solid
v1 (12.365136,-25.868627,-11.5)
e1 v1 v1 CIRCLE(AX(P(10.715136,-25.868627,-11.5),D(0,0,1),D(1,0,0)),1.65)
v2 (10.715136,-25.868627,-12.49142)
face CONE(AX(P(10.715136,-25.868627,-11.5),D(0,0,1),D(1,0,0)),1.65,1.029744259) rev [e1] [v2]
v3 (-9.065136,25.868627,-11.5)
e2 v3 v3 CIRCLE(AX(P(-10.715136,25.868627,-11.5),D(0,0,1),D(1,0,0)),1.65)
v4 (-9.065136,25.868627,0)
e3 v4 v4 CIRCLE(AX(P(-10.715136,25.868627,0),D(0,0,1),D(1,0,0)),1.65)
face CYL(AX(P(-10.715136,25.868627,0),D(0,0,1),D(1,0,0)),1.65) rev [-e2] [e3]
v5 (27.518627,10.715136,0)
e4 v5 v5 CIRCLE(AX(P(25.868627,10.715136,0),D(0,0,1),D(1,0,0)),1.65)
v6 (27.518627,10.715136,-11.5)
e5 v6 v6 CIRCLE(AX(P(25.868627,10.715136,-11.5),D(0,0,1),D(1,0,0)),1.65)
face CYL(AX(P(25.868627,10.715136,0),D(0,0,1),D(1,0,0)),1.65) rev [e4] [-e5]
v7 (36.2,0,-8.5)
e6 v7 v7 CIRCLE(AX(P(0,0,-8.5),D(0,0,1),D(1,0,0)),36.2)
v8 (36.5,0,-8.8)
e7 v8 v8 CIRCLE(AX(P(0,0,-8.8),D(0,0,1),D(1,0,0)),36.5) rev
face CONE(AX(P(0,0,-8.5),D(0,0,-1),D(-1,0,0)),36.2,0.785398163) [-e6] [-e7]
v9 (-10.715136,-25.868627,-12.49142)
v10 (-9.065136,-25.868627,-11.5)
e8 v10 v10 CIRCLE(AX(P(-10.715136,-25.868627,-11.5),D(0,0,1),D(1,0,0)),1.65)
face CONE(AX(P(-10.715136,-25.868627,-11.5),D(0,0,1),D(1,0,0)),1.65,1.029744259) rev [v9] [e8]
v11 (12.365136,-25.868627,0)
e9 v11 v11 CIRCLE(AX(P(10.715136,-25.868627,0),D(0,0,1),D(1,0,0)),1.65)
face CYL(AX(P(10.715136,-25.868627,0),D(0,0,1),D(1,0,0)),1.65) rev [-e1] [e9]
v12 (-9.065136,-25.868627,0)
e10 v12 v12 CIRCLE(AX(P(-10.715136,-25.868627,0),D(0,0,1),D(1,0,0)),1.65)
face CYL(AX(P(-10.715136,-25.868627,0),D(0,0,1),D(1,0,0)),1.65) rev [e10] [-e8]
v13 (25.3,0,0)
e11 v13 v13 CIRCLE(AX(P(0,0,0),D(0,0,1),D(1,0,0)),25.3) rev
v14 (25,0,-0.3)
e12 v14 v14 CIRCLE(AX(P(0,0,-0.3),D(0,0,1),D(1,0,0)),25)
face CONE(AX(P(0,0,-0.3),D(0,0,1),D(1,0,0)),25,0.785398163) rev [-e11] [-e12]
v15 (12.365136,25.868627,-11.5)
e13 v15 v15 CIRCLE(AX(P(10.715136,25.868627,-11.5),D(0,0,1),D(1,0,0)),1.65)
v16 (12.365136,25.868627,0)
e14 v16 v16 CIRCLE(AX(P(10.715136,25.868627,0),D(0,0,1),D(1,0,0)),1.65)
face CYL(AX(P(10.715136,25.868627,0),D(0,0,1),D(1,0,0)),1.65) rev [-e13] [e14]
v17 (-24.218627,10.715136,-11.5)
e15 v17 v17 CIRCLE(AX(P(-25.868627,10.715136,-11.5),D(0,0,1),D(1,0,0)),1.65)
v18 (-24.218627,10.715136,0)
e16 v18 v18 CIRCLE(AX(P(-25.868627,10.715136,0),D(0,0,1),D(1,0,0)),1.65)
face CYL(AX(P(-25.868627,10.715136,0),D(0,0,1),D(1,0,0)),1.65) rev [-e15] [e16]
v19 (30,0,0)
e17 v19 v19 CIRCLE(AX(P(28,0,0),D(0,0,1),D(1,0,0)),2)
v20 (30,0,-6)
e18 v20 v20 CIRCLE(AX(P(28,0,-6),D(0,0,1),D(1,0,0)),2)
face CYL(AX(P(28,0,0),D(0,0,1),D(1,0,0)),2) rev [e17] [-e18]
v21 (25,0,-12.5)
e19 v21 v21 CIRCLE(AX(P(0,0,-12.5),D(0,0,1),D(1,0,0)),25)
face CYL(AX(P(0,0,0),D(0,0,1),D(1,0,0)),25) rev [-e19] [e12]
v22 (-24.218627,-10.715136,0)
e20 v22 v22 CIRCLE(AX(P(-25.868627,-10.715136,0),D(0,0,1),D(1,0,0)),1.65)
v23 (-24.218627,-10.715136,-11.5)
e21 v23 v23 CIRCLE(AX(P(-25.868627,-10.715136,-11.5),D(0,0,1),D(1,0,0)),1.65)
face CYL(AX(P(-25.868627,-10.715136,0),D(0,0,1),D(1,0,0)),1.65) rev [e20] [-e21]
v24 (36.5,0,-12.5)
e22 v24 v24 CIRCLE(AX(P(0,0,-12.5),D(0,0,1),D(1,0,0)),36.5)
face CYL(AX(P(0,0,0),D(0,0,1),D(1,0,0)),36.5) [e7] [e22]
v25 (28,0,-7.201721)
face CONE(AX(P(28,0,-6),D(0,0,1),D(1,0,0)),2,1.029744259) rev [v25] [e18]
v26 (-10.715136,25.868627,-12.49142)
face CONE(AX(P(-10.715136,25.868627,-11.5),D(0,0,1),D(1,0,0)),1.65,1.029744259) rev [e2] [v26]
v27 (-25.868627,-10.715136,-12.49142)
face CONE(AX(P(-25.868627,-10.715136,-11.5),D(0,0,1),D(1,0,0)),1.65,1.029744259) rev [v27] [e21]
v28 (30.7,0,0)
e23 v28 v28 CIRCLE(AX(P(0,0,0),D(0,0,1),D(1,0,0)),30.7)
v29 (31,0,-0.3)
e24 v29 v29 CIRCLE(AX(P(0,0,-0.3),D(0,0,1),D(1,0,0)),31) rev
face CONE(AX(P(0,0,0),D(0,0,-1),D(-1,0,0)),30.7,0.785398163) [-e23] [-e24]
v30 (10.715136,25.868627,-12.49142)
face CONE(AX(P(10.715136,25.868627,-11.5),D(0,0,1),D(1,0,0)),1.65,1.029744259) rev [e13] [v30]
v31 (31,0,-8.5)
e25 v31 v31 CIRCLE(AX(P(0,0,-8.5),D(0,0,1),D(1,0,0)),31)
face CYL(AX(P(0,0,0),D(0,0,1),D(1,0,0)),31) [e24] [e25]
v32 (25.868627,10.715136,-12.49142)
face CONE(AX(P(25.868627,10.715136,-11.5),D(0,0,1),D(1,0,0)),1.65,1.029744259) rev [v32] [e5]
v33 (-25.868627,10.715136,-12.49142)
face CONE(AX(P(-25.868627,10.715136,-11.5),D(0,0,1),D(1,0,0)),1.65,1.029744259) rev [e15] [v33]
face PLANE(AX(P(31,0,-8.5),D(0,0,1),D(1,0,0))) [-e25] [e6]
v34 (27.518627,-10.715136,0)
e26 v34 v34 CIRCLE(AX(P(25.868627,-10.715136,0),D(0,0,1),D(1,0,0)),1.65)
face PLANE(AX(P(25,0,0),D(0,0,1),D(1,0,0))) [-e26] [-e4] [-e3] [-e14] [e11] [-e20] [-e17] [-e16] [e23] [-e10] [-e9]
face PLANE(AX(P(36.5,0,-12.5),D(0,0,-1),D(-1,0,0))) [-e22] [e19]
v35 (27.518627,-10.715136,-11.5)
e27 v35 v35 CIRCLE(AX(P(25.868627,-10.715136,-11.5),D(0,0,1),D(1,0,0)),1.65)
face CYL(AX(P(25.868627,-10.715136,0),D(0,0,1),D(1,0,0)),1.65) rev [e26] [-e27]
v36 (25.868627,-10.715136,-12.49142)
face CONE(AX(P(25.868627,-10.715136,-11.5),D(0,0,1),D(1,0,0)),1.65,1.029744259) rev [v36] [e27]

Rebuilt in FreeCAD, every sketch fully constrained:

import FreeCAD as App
import Part
import Sketcher

V = App.Vector
Q = App.Units.Quantity


def edges_at(feature, points):
    """Names of the edges that pass closest to the given points."""
    edges = feature.Shape.Edges
    near = lambda p: min(range(len(edges)), key=lambda i: edges[i].distToShape(Part.Vertex(*p))[0])
    return sorted({f"Edge{near(p) + 1}" for p in points})


def add_polygon(sketch, points):
    """Adds a closed chain of lines whose ends are joined by coincident constraints."""
    first, n = sketch.GeometryCount, len(points)
    for a, b in zip(points, points[1:] + points[:1]):
        sketch.addGeometry(Part.LineSegment(App.Vector(*a, 0), App.Vector(*b, 0)), False)
    for i in range(n):
        sketch.addConstraint(Sketcher.Constraint("Coincident", first + i, 2, first + (i + 1) % n, 1))

doc = App.newDocument("Part")
body = doc.addObject("PartDesign::Body", "Body")

sketch1 = body.newObject("Sketcher::SketchObject", "Sketch")
sketch1.AttachmentSupport = (doc.getObject("XZ_Plane"), [""])
sketch1.MapMode = "FlatFace"
add_polygon(sketch1, [(25, 0), (31, 0), (31, -8.5), (36.5, -8.5), (36.5, -12.5), (25, -12.5)])
sketch1.addConstraint([
    Sketcher.Constraint("Horizontal", 0),
    Sketcher.Constraint("Vertical", 1),
    Sketcher.Constraint("Horizontal", 2),
    Sketcher.Constraint("Vertical", 3),
    Sketcher.Constraint("Horizontal", 4),
    Sketcher.Constraint("Vertical", 5),
    Sketcher.Constraint("PointOnObject", 0, 2, -1),
    Sketcher.Constraint("DistanceX", 0, 1, 0, 2, 6.0),
    Sketcher.Constraint("DistanceY", 3, 2, 3, 1, 4.0),
    Sketcher.Constraint("DistanceX", 2, 1, 2, 2, 5.5),
    Sketcher.Constraint("DistanceY", 1, 2, 1, 1, 8.5),
    Sketcher.Constraint("DistanceX", -1, 1, 0, 2, 31.0),
])
revolution = body.newObject("PartDesign::Revolution", "Revolution")
revolution.Profile = sketch1
revolution.ReferenceAxis = (sketch1, ["V_Axis"])
revolution.Angle = 360
doc.recompute()

chamfer = body.newObject("PartDesign::Chamfer", "Chamfer")
chamfer.Base = (revolution, edges_at(revolution, [(-36.5, 0, -8.5), (-25, 0, 0), (-31, 0, 0)]))
chamfer.Size = 0.3

sketch2 = body.newObject("Sketcher::SketchObject", "Sketch001")
sketch2.AttachmentSupport = (doc.getObject("XY_Plane"), [""])
sketch2.MapMode = "FlatFace"
sketch2.addGeometry(Part.Circle(V(28, 0, 0), V(0, 0, 1), 2), False)
sketch2.addConstraint([
    Sketcher.Constraint("PointOnObject", 0, 3, -1),
    Sketcher.Constraint("Diameter", 0, 4.0),
    Sketcher.Constraint("DistanceX", -1, 1, 0, 3, 28.0),
])
doc.recompute()
hole = body.newObject("PartDesign::Hole", "Hole")
hole.Profile = sketch2
hole.ThreadType = "None"
hole.Diameter = 4
hole.DepthType = "Dimension"
hole.Depth = 6
hole.DrillPoint = "Angled"
hole.DrillPointAngle = 118

sketch3 = body.newObject("Sketcher::SketchObject", "Sketch002")
sketch3.AttachmentSupport = (doc.getObject("YZ_Plane"), [""])
sketch3.MapMode = "FlatFace"
sketch3.AttachmentOffset = App.Placement(V(0, 0, 25.868627), App.Rotation())
add_polygon(sketch3, [(-10.7, -12.5), (-10.7, 0), (-12.4, 0), (-12.4, -11.5)])
sketch3.addGeometry(Part.LineSegment(V(-10.7, 0, 0), V(-10.7, -12.5, 0)), True)
sketch3.addConstraint([
    Sketcher.Constraint("Vertical", 0),
    Sketcher.Constraint("Horizontal", 1),
    Sketcher.Constraint("Vertical", 2),
    Sketcher.Constraint("Vertical", 4),
    Sketcher.Constraint("Coincident", 4, 1, 0, 2),
    Sketcher.Constraint("PointOnObject", 0, 2, -1),
    Sketcher.Constraint("Equal", 0, 4),
    Sketcher.Constraint("Angle", 3, Q("-31 deg")),
    Sketcher.Constraint("DistanceY", 2, 2, 2, 1, 11.5),
    Sketcher.Constraint("DistanceX", 1, 2, 1, 1, 1.65),
    Sketcher.Constraint("DistanceX", 0, 2, -1, 1, 10.715136),
])
groove = body.newObject("PartDesign::Groove", "Groove")
groove.Profile = sketch3
groove.ReferenceAxis = (sketch3, ["Axis0"])
groove.Angle = 360
doc.recompute()

polarpattern = body.newObject("PartDesign::PolarPattern", "PolarPattern")
polarpattern.Originals = [groove]
polarpattern.Axis = (doc.getObject("Z_Axis"), [""])
polarpattern.Angle = 360
polarpattern.Occurrences = 8
body.Tip = polarpattern

doc.recompute()
